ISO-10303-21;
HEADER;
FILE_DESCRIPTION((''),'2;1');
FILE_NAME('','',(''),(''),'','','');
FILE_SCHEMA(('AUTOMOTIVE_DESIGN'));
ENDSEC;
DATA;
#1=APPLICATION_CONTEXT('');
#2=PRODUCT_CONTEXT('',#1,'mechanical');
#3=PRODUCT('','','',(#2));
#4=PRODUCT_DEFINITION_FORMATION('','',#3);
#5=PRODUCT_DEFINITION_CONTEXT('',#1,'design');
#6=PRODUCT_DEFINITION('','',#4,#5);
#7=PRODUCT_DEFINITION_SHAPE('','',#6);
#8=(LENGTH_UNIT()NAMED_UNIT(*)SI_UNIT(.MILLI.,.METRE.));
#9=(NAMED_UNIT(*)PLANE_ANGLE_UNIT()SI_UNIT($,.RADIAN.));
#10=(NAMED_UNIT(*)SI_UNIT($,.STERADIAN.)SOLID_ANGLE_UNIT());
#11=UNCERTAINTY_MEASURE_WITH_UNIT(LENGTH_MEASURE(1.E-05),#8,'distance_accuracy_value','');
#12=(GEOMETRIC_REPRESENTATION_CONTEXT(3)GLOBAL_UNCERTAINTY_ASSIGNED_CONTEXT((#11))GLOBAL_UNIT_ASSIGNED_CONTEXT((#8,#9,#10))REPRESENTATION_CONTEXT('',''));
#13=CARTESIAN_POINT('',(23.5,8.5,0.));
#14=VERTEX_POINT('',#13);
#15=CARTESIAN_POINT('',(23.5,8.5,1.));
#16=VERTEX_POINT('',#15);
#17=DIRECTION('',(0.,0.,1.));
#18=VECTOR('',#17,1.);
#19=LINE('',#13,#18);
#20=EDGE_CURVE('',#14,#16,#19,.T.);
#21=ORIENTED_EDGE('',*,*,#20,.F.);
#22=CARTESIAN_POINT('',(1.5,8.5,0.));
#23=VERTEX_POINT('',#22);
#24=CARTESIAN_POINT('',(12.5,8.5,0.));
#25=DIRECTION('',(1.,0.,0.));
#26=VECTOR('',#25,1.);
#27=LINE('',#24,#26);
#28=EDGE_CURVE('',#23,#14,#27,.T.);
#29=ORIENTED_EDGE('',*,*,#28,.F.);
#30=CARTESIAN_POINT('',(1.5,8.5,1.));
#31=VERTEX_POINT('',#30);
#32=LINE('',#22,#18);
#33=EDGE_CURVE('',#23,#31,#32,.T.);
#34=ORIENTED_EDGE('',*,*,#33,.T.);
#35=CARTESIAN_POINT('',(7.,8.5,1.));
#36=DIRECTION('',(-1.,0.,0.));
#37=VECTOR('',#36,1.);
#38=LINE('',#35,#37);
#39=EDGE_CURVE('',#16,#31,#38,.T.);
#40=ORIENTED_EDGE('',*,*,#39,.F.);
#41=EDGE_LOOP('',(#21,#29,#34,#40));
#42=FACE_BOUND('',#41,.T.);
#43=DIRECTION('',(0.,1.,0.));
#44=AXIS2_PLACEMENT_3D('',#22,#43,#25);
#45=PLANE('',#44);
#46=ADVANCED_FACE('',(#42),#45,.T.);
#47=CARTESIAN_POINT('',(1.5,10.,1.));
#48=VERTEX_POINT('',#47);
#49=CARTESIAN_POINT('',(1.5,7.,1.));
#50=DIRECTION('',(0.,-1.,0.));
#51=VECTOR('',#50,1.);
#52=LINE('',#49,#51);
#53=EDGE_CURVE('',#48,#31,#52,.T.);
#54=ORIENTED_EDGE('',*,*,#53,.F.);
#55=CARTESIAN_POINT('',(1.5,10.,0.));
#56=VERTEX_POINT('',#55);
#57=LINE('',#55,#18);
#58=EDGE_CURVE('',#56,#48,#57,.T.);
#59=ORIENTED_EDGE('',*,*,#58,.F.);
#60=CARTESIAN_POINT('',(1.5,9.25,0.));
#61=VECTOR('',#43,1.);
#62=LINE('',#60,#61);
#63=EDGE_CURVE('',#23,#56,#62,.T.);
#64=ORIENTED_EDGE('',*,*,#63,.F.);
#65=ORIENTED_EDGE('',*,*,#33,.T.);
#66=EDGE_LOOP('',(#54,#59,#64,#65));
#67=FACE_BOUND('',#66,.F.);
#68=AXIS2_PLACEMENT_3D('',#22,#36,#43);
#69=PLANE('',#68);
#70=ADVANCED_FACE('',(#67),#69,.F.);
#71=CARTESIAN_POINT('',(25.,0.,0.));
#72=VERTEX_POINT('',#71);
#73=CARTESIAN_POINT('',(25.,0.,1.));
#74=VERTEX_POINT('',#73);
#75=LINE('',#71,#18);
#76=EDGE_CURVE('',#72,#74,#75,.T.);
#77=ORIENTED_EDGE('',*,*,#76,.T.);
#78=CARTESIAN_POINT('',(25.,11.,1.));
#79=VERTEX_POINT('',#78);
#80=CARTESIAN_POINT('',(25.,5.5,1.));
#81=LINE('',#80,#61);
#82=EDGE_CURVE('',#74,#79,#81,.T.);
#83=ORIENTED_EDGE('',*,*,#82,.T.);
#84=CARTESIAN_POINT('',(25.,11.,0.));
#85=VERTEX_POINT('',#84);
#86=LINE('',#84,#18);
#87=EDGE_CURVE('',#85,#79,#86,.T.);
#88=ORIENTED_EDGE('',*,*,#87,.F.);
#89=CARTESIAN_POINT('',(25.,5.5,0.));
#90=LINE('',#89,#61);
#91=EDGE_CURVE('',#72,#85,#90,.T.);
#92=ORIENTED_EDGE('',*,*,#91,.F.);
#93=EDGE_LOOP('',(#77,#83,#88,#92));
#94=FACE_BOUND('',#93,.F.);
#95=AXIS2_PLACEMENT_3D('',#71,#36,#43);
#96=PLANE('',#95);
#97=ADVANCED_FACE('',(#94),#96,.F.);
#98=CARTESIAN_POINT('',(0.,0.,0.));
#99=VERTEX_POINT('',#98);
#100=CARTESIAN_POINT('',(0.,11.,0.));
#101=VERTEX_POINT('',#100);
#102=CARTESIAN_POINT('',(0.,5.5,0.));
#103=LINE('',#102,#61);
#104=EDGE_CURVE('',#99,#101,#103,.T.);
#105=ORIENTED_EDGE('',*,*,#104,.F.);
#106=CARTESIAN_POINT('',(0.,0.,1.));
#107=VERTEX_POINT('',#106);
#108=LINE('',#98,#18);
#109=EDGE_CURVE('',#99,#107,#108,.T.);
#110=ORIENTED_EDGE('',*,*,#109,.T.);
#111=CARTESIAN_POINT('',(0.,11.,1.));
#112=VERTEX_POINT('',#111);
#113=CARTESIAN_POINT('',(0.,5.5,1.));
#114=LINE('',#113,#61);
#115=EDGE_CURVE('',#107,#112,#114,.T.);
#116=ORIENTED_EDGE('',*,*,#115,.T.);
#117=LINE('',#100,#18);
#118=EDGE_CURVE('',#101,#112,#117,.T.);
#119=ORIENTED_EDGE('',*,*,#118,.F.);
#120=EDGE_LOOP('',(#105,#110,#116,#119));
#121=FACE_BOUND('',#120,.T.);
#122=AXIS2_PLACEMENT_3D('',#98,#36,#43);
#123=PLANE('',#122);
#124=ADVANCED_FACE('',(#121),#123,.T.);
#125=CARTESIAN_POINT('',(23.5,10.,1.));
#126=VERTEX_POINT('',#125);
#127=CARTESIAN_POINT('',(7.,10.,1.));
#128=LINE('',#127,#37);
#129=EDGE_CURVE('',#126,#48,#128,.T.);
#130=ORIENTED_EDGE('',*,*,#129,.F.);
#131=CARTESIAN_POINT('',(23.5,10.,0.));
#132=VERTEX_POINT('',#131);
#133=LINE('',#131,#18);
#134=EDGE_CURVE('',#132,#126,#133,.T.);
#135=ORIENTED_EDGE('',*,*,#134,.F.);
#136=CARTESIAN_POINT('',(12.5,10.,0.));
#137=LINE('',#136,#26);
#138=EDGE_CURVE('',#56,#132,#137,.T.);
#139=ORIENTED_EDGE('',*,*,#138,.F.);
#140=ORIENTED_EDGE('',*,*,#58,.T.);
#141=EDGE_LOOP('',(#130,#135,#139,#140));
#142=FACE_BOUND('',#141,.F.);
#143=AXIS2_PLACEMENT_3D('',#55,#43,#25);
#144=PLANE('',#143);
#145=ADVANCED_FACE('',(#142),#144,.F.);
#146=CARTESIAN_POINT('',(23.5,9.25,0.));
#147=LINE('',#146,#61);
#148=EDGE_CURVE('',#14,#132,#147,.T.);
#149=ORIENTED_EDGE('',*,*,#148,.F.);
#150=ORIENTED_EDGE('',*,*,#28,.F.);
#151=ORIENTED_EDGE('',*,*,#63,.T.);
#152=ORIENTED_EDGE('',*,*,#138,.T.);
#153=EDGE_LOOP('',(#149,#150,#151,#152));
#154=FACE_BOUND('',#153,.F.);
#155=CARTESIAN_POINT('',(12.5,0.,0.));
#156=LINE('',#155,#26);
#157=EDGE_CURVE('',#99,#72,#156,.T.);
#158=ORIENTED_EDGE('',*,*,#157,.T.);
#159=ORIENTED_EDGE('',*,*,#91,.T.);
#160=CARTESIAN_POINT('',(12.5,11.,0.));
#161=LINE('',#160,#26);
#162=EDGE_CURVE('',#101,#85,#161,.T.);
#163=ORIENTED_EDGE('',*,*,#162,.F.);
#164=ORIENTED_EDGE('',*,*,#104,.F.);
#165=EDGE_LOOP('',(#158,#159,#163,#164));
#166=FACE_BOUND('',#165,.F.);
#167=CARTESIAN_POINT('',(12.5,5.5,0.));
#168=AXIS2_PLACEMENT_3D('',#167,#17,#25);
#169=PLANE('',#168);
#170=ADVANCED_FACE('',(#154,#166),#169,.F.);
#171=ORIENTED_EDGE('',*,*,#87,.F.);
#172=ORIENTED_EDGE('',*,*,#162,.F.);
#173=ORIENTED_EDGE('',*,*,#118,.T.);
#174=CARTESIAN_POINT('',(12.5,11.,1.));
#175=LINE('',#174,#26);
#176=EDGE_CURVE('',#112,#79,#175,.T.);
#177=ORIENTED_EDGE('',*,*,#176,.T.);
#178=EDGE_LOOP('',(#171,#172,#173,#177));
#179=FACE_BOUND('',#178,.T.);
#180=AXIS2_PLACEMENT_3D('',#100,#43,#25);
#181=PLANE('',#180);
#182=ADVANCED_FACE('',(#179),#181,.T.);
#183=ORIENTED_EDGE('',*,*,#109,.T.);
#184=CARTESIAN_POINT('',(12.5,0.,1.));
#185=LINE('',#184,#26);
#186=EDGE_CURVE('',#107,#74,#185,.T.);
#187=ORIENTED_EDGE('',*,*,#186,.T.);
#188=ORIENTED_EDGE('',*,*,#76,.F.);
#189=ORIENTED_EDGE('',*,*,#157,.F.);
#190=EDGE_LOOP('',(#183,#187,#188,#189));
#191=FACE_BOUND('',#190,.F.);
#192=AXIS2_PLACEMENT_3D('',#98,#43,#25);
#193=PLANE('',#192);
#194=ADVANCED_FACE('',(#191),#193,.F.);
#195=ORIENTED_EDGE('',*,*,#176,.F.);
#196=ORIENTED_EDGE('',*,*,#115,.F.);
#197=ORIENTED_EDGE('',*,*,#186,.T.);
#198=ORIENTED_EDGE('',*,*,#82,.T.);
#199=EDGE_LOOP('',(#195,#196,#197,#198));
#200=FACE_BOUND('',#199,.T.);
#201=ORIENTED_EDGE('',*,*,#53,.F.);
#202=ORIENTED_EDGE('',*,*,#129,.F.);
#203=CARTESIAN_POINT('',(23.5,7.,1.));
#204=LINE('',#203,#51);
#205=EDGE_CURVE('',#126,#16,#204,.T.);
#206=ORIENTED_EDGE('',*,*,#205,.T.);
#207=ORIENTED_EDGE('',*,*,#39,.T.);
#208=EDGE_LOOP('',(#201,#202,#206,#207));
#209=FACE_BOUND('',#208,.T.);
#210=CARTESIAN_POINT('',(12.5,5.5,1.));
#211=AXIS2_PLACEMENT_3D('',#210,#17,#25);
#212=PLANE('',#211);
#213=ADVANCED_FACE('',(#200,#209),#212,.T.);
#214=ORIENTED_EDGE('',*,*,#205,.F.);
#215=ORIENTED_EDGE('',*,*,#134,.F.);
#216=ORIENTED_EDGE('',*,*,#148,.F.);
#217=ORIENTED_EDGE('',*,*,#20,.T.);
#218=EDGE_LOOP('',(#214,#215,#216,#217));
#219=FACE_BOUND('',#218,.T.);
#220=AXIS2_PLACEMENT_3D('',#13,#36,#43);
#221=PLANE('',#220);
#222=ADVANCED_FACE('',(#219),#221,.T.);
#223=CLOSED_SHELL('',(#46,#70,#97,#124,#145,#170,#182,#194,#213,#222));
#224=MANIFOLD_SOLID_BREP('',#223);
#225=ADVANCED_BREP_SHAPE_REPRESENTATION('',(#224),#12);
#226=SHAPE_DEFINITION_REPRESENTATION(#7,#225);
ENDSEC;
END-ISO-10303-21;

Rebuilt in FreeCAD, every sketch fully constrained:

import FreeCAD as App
import Part
import Sketcher

V = App.Vector

doc = App.newDocument("Part")
body = doc.addObject("PartDesign::Body", "Body")

# Sketch on XY plane
sketch1 = doc.addObject("Sketcher::SketchObject", "Sketch")
body.addObject(sketch1)
sketch1.AttachmentSupport = (doc.XY_Plane, [""])
sketch1.MapMode = "FlatFace"
sketch1.addGeometry([
    Part.LineSegment(V(1.5, 10, 0), V(1.5, 8.5, 0)),
    Part.LineSegment(V(1.5, 8.5, 0), V(23.5, 8.5, 0)),
    Part.LineSegment(V(23.5, 8.5, 0), V(23.5, 10, 0)),
    Part.LineSegment(V(23.5, 10, 0), V(1.5, 10, 0)),
], False)
sketch1.addConstraint([
    Sketcher.Constraint("Coincident", 0, 2, 1, 1),
    Sketcher.Constraint("Coincident", 1, 2, 2, 1),
    Sketcher.Constraint("Coincident", 2, 2, 3, 1),
    Sketcher.Constraint("Coincident", 3, 2, 0, 1),
    Sketcher.Constraint("Vertical", 0),
    Sketcher.Constraint("Horizontal", 1),
    Sketcher.Constraint("Vertical", 2),
    Sketcher.Constraint("Horizontal", 3),
    Sketcher.Constraint("DistanceX", 1, 1, 1, 2, 22.0),
    Sketcher.Constraint("DistanceY", 0, 2, 0, 1, 1.5),
    Sketcher.Constraint("DistanceY", -1, 1, 2, 2, 10.0),
    Sketcher.Constraint("DistanceX", -1, 1, 0, 2, 1.5),
])
pad1 = doc.addObject("PartDesign::Pad", "Pad")
body.addObject(pad1)
pad1.Profile = sketch1
pad1.Length = 2
body2 = doc.addObject("PartDesign::Body", "Body001")

# Sketch on XY plane
sketch2 = doc.addObject("Sketcher::SketchObject", "Sketch001")
body2.addObject(sketch2)
sketch2.AttachmentSupport = (doc.getObject("XY_Plane001"), [""])
sketch2.MapMode = "FlatFace"
sketch2.addGeometry([
    Part.LineSegment(V(0, 11, 0), V(0, 0, 0)),
    Part.LineSegment(V(0, 0, 0), V(25, 0, 0)),
    Part.LineSegment(V(25, 0, 0), V(25, 11, 0)),
    Part.LineSegment(V(25, 11, 0), V(0, 11, 0)),
], False)
sketch2.addConstraint([
    Sketcher.Constraint("Coincident", 0, 2, 1, 1),
    Sketcher.Constraint("Coincident", 1, 2, 2, 1),
    Sketcher.Constraint("Coincident", 2, 2, 3, 1),
    Sketcher.Constraint("Coincident", 3, 2, 0, 1),
    Sketcher.Constraint("Vertical", 0),
    Sketcher.Constraint("Horizontal", 1),
    Sketcher.Constraint("Vertical", 2),
    Sketcher.Constraint("Horizontal", 3),
    Sketcher.Constraint("Coincident", 0, 2, -1, 1),
    Sketcher.Constraint("DistanceX", 1, 1, 1, 2, 25.0),
    Sketcher.Constraint("DistanceY", 0, 2, 0, 1, 11.0),
])
pad2 = doc.addObject("PartDesign::Pad", "Pad001")
body2.addObject(pad2)
pad2.Profile = sketch2
pad2.Length = 1
doc.recompute()

boolean = doc.addObject("PartDesign::Boolean", "Boolean")
body2.addObject(boolean)
boolean.Type = "Cut"
boolean.addObjects([body])

doc.recompute()
